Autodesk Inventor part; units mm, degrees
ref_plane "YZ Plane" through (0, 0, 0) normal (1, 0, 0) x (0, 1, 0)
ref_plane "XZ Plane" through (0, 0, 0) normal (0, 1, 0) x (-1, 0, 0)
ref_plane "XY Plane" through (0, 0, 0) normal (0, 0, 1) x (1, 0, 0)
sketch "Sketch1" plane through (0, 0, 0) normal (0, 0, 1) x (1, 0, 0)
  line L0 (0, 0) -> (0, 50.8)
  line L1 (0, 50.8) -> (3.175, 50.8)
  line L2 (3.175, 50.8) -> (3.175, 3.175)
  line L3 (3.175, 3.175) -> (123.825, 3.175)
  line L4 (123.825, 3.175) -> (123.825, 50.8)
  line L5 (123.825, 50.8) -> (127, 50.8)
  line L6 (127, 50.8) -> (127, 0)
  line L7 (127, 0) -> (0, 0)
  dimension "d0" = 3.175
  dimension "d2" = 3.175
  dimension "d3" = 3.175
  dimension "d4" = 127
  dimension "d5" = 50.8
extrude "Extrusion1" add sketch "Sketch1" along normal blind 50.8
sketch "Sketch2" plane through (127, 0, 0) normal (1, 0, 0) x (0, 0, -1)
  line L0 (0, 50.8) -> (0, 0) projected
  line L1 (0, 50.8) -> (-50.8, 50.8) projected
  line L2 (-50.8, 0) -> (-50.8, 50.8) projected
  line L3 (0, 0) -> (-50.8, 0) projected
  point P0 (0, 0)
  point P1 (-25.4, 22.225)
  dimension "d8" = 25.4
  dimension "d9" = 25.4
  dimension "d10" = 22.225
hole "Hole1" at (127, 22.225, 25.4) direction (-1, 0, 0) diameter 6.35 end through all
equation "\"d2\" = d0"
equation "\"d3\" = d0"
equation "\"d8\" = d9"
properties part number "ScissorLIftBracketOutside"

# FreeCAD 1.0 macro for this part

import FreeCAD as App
import Part
import Sketcher

V = App.Vector
Q = App.Units.Quantity


def add_polygon(sketch, points):
    """Adds a closed chain of lines whose ends are joined by coincident constraints."""
    first, n = sketch.GeometryCount, len(points)
    for a, b in zip(points, points[1:] + points[:1]):
        sketch.addGeometry(Part.LineSegment(App.Vector(*a, 0), App.Vector(*b, 0)), False)
    for i in range(n):
        sketch.addConstraint(Sketcher.Constraint("Coincident", first + i, 2, first + (i + 1) % n, 1))

doc = App.newDocument("Part")
body = doc.addObject("PartDesign::Body", "Body")

sketch1 = doc.addObject("Sketcher::SketchObject", "Sketch")
body.addObject(sketch1)
sketch1.AttachmentSupport = (doc.XY_Plane, [""])
sketch1.MapMode = "FlatFace"
add_polygon(sketch1, [(0, 50.8), (0, 0), (127, 0), (127, 50.8), (123.825, 50.8), (123.825, 3.175), (3.175, 3.175), (3.175, 50.8)])
sketch1.addConstraint([
    Sketcher.Constraint("Vertical", 0),
    Sketcher.Constraint("Horizontal", 1),
    Sketcher.Constraint("Vertical", 2),
    Sketcher.Constraint("Horizontal", 3),
    Sketcher.Constraint("Vertical", 4),
    Sketcher.Constraint("Horizontal", 5),
    Sketcher.Constraint("Vertical", 6),
    Sketcher.Constraint("Horizontal", 7),
    Sketcher.Constraint("Coincident", 0, 2, -1, 1),
    Sketcher.Constraint("Horizontal", 3, 2, 6, 2),
    Sketcher.Constraint("Equal", 3, 7),
    Sketcher.Constraint("DistanceX", 1, 1, 1, 2, Q("5 in")),
    Sketcher.Constraint("DistanceY", 0, 2, 0, 1, Q("2 in")),
    Sketcher.Constraint("DistanceX", 3, 2, 3, 1, Q("0.125 in")),
    Sketcher.Constraint("DistanceY", -1, 1, 4, 2, Q("0.125 in")),
])
pad1 = doc.addObject("PartDesign::Pad", "Pad")
body.addObject(pad1)
pad1.Profile = sketch1
pad1.Length = Q("2 in")

sketch2 = doc.addObject("Sketcher::SketchObject", "Sketch001")
body.addObject(sketch2)
sketch2.AttachmentSupport = (doc.YZ_Plane, [""])
sketch2.MapMode = "FlatFace"
sketch2.AttachmentOffset = App.Placement(V(0, 0, 5 * 25.4), App.Rotation())
sketch2.addGeometry(Part.Circle(V(22.225, 25.4, 0), V(0, 0, 1), 3.175), False)
sketch2.addConstraint([
    Sketcher.Constraint("Diameter", 0, Q("0.25 in")),
    Sketcher.Constraint("DistanceY", -1, 1, 0, 3, Q("1 in")),
    Sketcher.Constraint("DistanceX", -1, 1, 0, 3, Q("0.875 in")),
])
doc.recompute()
hole = doc.addObject("PartDesign::Hole", "Hole")
body.addObject(hole)
hole.Profile = sketch2
hole.ThreadType = "None"
hole.Diameter = Q("0.25 in")
hole.DepthType = "ThroughAll"

doc.recompute()
